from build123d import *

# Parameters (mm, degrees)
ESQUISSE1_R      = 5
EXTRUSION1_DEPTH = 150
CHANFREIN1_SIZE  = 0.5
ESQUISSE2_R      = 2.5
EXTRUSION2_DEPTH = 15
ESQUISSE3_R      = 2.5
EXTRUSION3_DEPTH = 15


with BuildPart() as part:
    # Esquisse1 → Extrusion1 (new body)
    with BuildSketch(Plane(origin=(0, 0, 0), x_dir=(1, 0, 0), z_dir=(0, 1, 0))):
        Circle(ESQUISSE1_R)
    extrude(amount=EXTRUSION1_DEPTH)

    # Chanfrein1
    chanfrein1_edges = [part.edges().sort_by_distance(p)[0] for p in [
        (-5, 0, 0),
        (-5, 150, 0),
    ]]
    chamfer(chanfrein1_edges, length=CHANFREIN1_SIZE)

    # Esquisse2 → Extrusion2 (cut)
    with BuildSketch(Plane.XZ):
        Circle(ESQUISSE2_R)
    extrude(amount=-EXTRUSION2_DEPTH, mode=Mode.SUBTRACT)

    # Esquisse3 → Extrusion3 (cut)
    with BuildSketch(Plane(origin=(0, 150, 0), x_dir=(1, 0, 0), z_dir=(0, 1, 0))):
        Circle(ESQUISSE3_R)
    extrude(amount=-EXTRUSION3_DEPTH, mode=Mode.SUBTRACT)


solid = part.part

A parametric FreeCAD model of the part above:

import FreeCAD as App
import Part
import Sketcher
from FreeCAD import Vector
Q = App.Units.Quantity


def edges_at(feature, points):
    """Names of the edges that pass closest to the given points."""
    edges = feature.Shape.Edges
    near = lambda p: min(range(len(edges)), key=lambda i: edges[i].distToShape(Part.Vertex(*p))[0])
    return sorted({f"Edge{near(p) + 1}" for p in points})

doc = App.newDocument("Part")
body = doc.addObject("PartDesign::Body", "Body")

sketch1 = body.newObject("Sketcher::SketchObject", "Sketch")
sketch1.AttachmentSupport = (doc.getObject("XZ_Plane"), [""])
sketch1.MapMode = "FlatFace"
sketch1.addGeometry(Part.Circle(Vector(0, 0, 0), Vector(0, 0, 1), 5), False)
sketch1.addConstraint([
    Sketcher.Constraint("Coincident", 0, 3, -1, 1),
    Sketcher.Constraint("Diameter", 0, Q("10 mm")),
])
pad1 = body.newObject("PartDesign::Pad", "Pad")
pad1.Profile = sketch1
pad1.Length = 150
pad1.Reversed = True
doc.recompute()

chamfer = body.newObject("PartDesign::Chamfer", "Chamfer")
chamfer.Base = (pad1, edges_at(pad1, [(-5, 0, 0), (-5, 150, 0)]))
chamfer.Size = 0.5

sketch2 = body.newObject("Sketcher::SketchObject", "Sketch001")
sketch2.AttachmentSupport = (doc.getObject("XZ_Plane"), [""])
sketch2.MapMode = "FlatFace"
sketch2.addGeometry(Part.Circle(Vector(0, 0, 0), Vector(0, 0, 1), 2.5), False)
sketch2.addConstraint([
    Sketcher.Constraint("Coincident", 0, 3, -1, 1),
    Sketcher.Constraint("Diameter", 0, Q("5 mm")),
])
pocket1 = body.newObject("PartDesign::Pocket", "Pocket")
pocket1.Profile = sketch2
pocket1.Length = 15

sketch3 = body.newObject("Sketcher::SketchObject", "Sketch002")
sketch3.AttachmentSupport = (doc.getObject("XZ_Plane"), [""])
sketch3.MapMode = "FlatFace"
sketch3.AttachmentOffset = App.Placement(Vector(0, 0, -150), App.Rotation())
sketch3.addGeometry(Part.Circle(Vector(0, 0, 0), Vector(0, 0, 1), 2.5), False)
sketch3.addConstraint([
    Sketcher.Constraint("Coincident", 0, 3, -1, 1),
    Sketcher.Constraint("Diameter", 0, Q("5 mm")),
])
pocket2 = body.newObject("PartDesign::Pocket", "Pocket001")
pocket2.Profile = sketch3
pocket2.Length = 15
pocket2.Reversed = True

doc.recompute()
